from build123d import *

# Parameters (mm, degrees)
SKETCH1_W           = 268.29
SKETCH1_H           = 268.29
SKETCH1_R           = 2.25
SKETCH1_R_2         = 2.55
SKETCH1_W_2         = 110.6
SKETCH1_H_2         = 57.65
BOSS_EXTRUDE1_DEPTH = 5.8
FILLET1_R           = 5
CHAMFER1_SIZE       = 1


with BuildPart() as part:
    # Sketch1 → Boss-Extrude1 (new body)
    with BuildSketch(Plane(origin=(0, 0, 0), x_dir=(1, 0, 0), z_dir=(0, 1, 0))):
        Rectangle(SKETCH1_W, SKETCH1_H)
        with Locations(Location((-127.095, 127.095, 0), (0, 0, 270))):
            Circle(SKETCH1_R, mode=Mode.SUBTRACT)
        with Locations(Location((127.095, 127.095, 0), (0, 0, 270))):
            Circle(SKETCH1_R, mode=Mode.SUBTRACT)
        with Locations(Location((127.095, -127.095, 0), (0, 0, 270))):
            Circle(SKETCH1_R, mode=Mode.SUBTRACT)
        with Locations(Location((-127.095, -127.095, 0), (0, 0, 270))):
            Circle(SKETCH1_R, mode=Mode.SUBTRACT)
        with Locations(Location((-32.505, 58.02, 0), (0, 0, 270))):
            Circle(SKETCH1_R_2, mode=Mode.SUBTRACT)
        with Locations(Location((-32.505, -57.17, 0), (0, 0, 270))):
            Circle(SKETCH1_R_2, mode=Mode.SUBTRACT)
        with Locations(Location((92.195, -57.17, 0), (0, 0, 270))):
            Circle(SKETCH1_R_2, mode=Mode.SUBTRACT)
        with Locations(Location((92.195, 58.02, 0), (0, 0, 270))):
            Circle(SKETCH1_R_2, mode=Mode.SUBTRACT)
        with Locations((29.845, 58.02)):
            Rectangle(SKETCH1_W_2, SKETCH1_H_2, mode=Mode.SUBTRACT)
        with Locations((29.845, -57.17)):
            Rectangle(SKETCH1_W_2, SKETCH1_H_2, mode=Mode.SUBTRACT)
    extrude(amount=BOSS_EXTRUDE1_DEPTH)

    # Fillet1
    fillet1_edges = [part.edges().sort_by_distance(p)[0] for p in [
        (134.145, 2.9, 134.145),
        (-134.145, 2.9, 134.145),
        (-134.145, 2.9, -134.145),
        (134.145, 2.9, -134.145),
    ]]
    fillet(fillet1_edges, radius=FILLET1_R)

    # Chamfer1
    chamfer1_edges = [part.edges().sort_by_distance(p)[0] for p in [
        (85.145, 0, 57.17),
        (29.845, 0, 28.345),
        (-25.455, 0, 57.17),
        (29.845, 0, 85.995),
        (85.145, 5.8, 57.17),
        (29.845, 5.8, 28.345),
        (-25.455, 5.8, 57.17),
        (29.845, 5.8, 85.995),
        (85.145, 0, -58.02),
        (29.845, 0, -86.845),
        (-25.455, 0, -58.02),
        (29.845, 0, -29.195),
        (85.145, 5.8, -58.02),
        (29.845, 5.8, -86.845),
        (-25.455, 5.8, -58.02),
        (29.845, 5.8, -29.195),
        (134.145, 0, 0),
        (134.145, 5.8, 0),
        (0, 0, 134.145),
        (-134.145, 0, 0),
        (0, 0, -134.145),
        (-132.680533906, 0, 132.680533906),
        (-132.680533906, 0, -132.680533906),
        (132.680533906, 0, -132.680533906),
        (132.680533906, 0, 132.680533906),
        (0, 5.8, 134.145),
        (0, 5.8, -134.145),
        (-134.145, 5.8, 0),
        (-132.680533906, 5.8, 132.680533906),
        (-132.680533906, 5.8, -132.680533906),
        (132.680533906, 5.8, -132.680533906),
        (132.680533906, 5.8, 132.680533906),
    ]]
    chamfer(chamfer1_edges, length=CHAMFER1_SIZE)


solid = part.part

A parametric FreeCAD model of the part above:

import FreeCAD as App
import Part
import Sketcher


def edges_at(feature, points):
    """Names of the edges that pass closest to the given points."""
    edges = feature.Shape.Edges
    near = lambda p: min(range(len(edges)), key=lambda i: edges[i].distToShape(Part.Vertex(*p))[0])
    return sorted({f"Edge{near(p) + 1}" for p in points})

doc = App.newDocument("Part")
params = doc.addObject("Spreadsheet::Sheet", "Params")
for row, (alias, value) in enumerate([
    ("sketch1_diameter", "4.5 mm"),
    ("sketch1_diameter2", "5.1 mm"),
    ("sketch1_width", "110.6 mm"),
    ("sketch1_width2", "268.29 mm"),
    ("sketch1_height", "57.65 mm"),
    ("pad1_length", "5.8 mm"),
    ("fillet_radius", "5 mm"),
    ("chamfer_size", "1 mm"),
], start=1):
    params.set(f"A{row}", alias)
    params.set(f"B{row}", "=" + value)
    params.setAlias(f"B{row}", alias)

body = doc.addObject("PartDesign::Body", "Body")

# Sketch on XZ plane
sketch1 = doc.addObject("Sketcher::SketchObject", "Sketch")
body.addObject(sketch1)
sketch1.AttachmentSupport = (doc.XZ_Plane, [""])
sketch1.MapMode = "FlatFace"
sketch1.addGeometry([
    Part.LineSegment(App.Vector(-134.1, -134.1, 0), App.Vector(-134.1, 134.1, 0)),  # 0
    Part.LineSegment(App.Vector(-134.1, 134.1, 0), App.Vector(134.1, 134.1, 0)),  # 1
    Part.LineSegment(App.Vector(134.1, 134.1, 0), App.Vector(134.1, -134.1, 0)),  # 2
    Part.LineSegment(App.Vector(134.1, -134.1, 0), App.Vector(-134.1, -134.1, 0)),  # 3
    Part.Circle(App.Vector(-127.1, 127.1, 0), App.Vector(0, 0, 1), 2.2),  # 4
    Part.Circle(App.Vector(-32.5, 57.2, 0), App.Vector(0, 0, 1), 2.5),  # 5
    Part.Circle(App.Vector(127.1, 127.1, 0), App.Vector(0, 0, 1), 2.2),  # 6
    Part.LineSegment(App.Vector(85.1, 86, 0), App.Vector(-25.5, 86, 0)),  # 7
    Part.LineSegment(App.Vector(-25.5, 86, 0), App.Vector(-25.5, 28.3, 0)),  # 8
    Part.LineSegment(App.Vector(-25.5, 28.3, 0), App.Vector(85.1, 28.3, 0)),  # 9
    Part.LineSegment(App.Vector(85.1, 28.3, 0), App.Vector(85.1, 86, 0)),  # 10
    Part.Circle(App.Vector(92.2, 57.2, 0), App.Vector(0, 0, 1), 2.5),  # 11
    Part.Circle(App.Vector(-32.5, -58, 0), App.Vector(0, 0, 1), 2.5),  # 12
    Part.Circle(App.Vector(-127.1, -127.1, 0), App.Vector(0, 0, 1), 2.2),  # 13
    Part.LineSegment(App.Vector(85.1, -29.2, 0), App.Vector(-25.5, -29.2, 0)),  # 14
    Part.LineSegment(App.Vector(-25.5, -29.2, 0), App.Vector(-25.5, -86.8, 0)),  # 15
    Part.LineSegment(App.Vector(-25.5, -86.8, 0), App.Vector(85.1, -86.8, 0)),  # 16
    Part.LineSegment(App.Vector(85.1, -86.8, 0), App.Vector(85.1, -29.2, 0)),  # 17
    Part.Circle(App.Vector(92.2, -58, 0), App.Vector(0, 0, 1), 2.5),  # 18
    Part.Circle(App.Vector(127.1, -127.1, 0), App.Vector(0, 0, 1), 2.2),  # 19
], False)
sketch1.addConstraint([
    Sketcher.Constraint("Coincident", 0, 2, 1, 1),
    Sketcher.Constraint("Coincident", 1, 2, 2, 1),
    Sketcher.Constraint("Coincident", 2, 2, 3, 1),
    Sketcher.Constraint("Coincident", 3, 2, 0, 1),
    Sketcher.Constraint("Coincident", 7, 2, 8, 1),
    Sketcher.Constraint("Coincident", 8, 2, 9, 1),
    Sketcher.Constraint("Coincident", 9, 2, 10, 1),
    Sketcher.Constraint("Coincident", 10, 2, 7, 1),
    Sketcher.Constraint("Coincident", 14, 2, 15, 1),
    Sketcher.Constraint("Coincident", 15, 2, 16, 1),
    Sketcher.Constraint("Coincident", 16, 2, 17, 1),
    Sketcher.Constraint("Coincident", 17, 2, 14, 1),
    Sketcher.Constraint("Vertical", 0),
    Sketcher.Constraint("Horizontal", 1),
    Sketcher.Constraint("Vertical", 2),
    Sketcher.Constraint("Horizontal", 3),
    Sketcher.Constraint("Horizontal", 7),
    Sketcher.Constraint("Vertical", 8),
    Sketcher.Constraint("Horizontal", 9),
    Sketcher.Constraint("Vertical", 10),
    Sketcher.Constraint("Horizontal", 14),
    Sketcher.Constraint("Vertical", 15),
    Sketcher.Constraint("Horizontal", 16),
    Sketcher.Constraint("Vertical", 17),
    Sketcher.Constraint("Equal", 4, 6),
    Sketcher.Constraint("Equal", 5, 11),
    Sketcher.Constraint("Equal", 11, 12),
    Sketcher.Constraint("Equal", 6, 13),
    Sketcher.Constraint("Equal", 12, 18),
    Sketcher.Constraint("Equal", 13, 19),
    Sketcher.Constraint("Symmetric", 6, 3, 13, 3, -1, 1),
    Sketcher.Constraint("Symmetric", 4, 3, 19, 3, -1, 1),
    Sketcher.Constraint("Symmetric", 0, 2, 2, 2, -1, 1),
    Sketcher.Constraint("Symmetric", 4, 3, 6, 3, -2),
    Sketcher.Constraint("Horizontal", 5, 3, 11, 3),
    Sketcher.Constraint("Horizontal", 12, 3, 18, 3),
    Sketcher.Constraint("Vertical", 5, 3, 12, 3),
    Sketcher.Constraint("Vertical", 11, 3, 18, 3),
    Sketcher.Constraint("Vertical", 8, 2, 14, 2),
    Sketcher.Constraint("Vertical", 10, 2, 16, 2),
    Sketcher.Constraint("Equal", 3, 0),
    Sketcher.Constraint("Equal", 10, 15),
    Sketcher.Constraint("Diameter", 4, 4.5),
    Sketcher.Constraint("Diameter", 5, 5.1),
    Sketcher.Constraint("DistanceX", 7, 2, 7, 1, 110.6),
    Sketcher.Constraint("DistanceX", 9, 2, 1, 2, 49.0),
    Sketcher.Constraint("DistanceX", 1, 1, 1, 2, 268.29),
    Sketcher.Constraint("DistanceY", 8, 2, 8, 1, 57.65),
    Sketcher.Constraint("DistanceX", 5, 3, 6, 3, 159.6),
    Sketcher.Constraint("DistanceX", 11, 3, 6, 3, 34.9),
    Sketcher.Constraint("DistanceY", 7, 2, 4, 3, 41.1),
    Sketcher.Constraint("DistanceY", 9, 2, 1, 2, 105.8),
    Sketcher.Constraint("DistanceY", 3, 2, 15, 2, 47.3),
    Sketcher.Constraint("DistanceY", -1, 1, 5, 3, 57.17),
    Sketcher.Constraint("DistanceY", 12, 3, -1, 1, 58.02),
    Sketcher.Constraint("DistanceX", 4, 3, 5, 3, 94.59),
])
sketch1.setExpression("Constraints[42]", "Params.sketch1_diameter")
sketch1.setExpression("Constraints[43]", "Params.sketch1_diameter2")
sketch1.setExpression("Constraints[44]", "Params.sketch1_width")
sketch1.setExpression("Constraints[46]", "Params.sketch1_width2")
sketch1.setExpression("Constraints[47]", "Params.sketch1_height")
pad1 = doc.addObject("PartDesign::Pad", "Pad")
body.addObject(pad1)
pad1.Profile = sketch1
pad1.setExpression("Length", "Params.pad1_length")
pad1.Reversed = True
doc.recompute()

fillet = doc.addObject("PartDesign::Fillet", "Fillet")
body.addObject(fillet)
fillet.Base = (pad1, edges_at(pad1, [
    (134.145, 2.9, 134.145),
    (-134.145, 2.9, 134.145),
    (-134.145, 2.9, -134.145),
    (134.145, 2.9, -134.145),
]))
fillet.setExpression("Radius", "Params.fillet_radius")
doc.recompute()

chamfer = doc.addObject("PartDesign::Chamfer", "Chamfer")
body.addObject(chamfer)
chamfer.Base = (fillet, edges_at(fillet, [
    (85.145, 0, 57.17),
    (29.845, 0, 28.345),
    (-25.455, 0, 57.17),
    (29.845, 0, 85.995),
    (85.145, 5.8, 57.17),
    (29.845, 5.8, 28.345),
    (-25.455, 5.8, 57.17),
    (29.845, 5.8, 85.995),
    (85.145, 0, -58.02),
    (29.845, 0, -86.845),
    (-25.455, 0, -58.02),
    (29.845, 0, -29.195),
    (85.145, 5.8, -58.02),
    (29.845, 5.8, -86.845),
    (-25.455, 5.8, -58.02),
    (29.845, 5.8, -29.195),
    (134.145, 0, 0),
    (134.145, 5.8, 0),
    (0, 0, 134.145),
    (-134.145, 0, 0),
    (0, 0, -134.145),
    (-132.681, 0, 132.681),
    (-132.681, 0, -132.681),
    (132.681, 0, -132.681),
    (132.681, 0, 132.681),
    (0, 5.8, 134.145),
    (0, 5.8, -134.145),
    (-134.145, 5.8, 0),
    (-132.681, 5.8, 132.681),
    (-132.681, 5.8, -132.681),
    (132.681, 5.8, -132.681),
    (132.681, 5.8, 132.681),
]))
chamfer.setExpression("Size", "Params.chamfer_size")

doc.recompute()
